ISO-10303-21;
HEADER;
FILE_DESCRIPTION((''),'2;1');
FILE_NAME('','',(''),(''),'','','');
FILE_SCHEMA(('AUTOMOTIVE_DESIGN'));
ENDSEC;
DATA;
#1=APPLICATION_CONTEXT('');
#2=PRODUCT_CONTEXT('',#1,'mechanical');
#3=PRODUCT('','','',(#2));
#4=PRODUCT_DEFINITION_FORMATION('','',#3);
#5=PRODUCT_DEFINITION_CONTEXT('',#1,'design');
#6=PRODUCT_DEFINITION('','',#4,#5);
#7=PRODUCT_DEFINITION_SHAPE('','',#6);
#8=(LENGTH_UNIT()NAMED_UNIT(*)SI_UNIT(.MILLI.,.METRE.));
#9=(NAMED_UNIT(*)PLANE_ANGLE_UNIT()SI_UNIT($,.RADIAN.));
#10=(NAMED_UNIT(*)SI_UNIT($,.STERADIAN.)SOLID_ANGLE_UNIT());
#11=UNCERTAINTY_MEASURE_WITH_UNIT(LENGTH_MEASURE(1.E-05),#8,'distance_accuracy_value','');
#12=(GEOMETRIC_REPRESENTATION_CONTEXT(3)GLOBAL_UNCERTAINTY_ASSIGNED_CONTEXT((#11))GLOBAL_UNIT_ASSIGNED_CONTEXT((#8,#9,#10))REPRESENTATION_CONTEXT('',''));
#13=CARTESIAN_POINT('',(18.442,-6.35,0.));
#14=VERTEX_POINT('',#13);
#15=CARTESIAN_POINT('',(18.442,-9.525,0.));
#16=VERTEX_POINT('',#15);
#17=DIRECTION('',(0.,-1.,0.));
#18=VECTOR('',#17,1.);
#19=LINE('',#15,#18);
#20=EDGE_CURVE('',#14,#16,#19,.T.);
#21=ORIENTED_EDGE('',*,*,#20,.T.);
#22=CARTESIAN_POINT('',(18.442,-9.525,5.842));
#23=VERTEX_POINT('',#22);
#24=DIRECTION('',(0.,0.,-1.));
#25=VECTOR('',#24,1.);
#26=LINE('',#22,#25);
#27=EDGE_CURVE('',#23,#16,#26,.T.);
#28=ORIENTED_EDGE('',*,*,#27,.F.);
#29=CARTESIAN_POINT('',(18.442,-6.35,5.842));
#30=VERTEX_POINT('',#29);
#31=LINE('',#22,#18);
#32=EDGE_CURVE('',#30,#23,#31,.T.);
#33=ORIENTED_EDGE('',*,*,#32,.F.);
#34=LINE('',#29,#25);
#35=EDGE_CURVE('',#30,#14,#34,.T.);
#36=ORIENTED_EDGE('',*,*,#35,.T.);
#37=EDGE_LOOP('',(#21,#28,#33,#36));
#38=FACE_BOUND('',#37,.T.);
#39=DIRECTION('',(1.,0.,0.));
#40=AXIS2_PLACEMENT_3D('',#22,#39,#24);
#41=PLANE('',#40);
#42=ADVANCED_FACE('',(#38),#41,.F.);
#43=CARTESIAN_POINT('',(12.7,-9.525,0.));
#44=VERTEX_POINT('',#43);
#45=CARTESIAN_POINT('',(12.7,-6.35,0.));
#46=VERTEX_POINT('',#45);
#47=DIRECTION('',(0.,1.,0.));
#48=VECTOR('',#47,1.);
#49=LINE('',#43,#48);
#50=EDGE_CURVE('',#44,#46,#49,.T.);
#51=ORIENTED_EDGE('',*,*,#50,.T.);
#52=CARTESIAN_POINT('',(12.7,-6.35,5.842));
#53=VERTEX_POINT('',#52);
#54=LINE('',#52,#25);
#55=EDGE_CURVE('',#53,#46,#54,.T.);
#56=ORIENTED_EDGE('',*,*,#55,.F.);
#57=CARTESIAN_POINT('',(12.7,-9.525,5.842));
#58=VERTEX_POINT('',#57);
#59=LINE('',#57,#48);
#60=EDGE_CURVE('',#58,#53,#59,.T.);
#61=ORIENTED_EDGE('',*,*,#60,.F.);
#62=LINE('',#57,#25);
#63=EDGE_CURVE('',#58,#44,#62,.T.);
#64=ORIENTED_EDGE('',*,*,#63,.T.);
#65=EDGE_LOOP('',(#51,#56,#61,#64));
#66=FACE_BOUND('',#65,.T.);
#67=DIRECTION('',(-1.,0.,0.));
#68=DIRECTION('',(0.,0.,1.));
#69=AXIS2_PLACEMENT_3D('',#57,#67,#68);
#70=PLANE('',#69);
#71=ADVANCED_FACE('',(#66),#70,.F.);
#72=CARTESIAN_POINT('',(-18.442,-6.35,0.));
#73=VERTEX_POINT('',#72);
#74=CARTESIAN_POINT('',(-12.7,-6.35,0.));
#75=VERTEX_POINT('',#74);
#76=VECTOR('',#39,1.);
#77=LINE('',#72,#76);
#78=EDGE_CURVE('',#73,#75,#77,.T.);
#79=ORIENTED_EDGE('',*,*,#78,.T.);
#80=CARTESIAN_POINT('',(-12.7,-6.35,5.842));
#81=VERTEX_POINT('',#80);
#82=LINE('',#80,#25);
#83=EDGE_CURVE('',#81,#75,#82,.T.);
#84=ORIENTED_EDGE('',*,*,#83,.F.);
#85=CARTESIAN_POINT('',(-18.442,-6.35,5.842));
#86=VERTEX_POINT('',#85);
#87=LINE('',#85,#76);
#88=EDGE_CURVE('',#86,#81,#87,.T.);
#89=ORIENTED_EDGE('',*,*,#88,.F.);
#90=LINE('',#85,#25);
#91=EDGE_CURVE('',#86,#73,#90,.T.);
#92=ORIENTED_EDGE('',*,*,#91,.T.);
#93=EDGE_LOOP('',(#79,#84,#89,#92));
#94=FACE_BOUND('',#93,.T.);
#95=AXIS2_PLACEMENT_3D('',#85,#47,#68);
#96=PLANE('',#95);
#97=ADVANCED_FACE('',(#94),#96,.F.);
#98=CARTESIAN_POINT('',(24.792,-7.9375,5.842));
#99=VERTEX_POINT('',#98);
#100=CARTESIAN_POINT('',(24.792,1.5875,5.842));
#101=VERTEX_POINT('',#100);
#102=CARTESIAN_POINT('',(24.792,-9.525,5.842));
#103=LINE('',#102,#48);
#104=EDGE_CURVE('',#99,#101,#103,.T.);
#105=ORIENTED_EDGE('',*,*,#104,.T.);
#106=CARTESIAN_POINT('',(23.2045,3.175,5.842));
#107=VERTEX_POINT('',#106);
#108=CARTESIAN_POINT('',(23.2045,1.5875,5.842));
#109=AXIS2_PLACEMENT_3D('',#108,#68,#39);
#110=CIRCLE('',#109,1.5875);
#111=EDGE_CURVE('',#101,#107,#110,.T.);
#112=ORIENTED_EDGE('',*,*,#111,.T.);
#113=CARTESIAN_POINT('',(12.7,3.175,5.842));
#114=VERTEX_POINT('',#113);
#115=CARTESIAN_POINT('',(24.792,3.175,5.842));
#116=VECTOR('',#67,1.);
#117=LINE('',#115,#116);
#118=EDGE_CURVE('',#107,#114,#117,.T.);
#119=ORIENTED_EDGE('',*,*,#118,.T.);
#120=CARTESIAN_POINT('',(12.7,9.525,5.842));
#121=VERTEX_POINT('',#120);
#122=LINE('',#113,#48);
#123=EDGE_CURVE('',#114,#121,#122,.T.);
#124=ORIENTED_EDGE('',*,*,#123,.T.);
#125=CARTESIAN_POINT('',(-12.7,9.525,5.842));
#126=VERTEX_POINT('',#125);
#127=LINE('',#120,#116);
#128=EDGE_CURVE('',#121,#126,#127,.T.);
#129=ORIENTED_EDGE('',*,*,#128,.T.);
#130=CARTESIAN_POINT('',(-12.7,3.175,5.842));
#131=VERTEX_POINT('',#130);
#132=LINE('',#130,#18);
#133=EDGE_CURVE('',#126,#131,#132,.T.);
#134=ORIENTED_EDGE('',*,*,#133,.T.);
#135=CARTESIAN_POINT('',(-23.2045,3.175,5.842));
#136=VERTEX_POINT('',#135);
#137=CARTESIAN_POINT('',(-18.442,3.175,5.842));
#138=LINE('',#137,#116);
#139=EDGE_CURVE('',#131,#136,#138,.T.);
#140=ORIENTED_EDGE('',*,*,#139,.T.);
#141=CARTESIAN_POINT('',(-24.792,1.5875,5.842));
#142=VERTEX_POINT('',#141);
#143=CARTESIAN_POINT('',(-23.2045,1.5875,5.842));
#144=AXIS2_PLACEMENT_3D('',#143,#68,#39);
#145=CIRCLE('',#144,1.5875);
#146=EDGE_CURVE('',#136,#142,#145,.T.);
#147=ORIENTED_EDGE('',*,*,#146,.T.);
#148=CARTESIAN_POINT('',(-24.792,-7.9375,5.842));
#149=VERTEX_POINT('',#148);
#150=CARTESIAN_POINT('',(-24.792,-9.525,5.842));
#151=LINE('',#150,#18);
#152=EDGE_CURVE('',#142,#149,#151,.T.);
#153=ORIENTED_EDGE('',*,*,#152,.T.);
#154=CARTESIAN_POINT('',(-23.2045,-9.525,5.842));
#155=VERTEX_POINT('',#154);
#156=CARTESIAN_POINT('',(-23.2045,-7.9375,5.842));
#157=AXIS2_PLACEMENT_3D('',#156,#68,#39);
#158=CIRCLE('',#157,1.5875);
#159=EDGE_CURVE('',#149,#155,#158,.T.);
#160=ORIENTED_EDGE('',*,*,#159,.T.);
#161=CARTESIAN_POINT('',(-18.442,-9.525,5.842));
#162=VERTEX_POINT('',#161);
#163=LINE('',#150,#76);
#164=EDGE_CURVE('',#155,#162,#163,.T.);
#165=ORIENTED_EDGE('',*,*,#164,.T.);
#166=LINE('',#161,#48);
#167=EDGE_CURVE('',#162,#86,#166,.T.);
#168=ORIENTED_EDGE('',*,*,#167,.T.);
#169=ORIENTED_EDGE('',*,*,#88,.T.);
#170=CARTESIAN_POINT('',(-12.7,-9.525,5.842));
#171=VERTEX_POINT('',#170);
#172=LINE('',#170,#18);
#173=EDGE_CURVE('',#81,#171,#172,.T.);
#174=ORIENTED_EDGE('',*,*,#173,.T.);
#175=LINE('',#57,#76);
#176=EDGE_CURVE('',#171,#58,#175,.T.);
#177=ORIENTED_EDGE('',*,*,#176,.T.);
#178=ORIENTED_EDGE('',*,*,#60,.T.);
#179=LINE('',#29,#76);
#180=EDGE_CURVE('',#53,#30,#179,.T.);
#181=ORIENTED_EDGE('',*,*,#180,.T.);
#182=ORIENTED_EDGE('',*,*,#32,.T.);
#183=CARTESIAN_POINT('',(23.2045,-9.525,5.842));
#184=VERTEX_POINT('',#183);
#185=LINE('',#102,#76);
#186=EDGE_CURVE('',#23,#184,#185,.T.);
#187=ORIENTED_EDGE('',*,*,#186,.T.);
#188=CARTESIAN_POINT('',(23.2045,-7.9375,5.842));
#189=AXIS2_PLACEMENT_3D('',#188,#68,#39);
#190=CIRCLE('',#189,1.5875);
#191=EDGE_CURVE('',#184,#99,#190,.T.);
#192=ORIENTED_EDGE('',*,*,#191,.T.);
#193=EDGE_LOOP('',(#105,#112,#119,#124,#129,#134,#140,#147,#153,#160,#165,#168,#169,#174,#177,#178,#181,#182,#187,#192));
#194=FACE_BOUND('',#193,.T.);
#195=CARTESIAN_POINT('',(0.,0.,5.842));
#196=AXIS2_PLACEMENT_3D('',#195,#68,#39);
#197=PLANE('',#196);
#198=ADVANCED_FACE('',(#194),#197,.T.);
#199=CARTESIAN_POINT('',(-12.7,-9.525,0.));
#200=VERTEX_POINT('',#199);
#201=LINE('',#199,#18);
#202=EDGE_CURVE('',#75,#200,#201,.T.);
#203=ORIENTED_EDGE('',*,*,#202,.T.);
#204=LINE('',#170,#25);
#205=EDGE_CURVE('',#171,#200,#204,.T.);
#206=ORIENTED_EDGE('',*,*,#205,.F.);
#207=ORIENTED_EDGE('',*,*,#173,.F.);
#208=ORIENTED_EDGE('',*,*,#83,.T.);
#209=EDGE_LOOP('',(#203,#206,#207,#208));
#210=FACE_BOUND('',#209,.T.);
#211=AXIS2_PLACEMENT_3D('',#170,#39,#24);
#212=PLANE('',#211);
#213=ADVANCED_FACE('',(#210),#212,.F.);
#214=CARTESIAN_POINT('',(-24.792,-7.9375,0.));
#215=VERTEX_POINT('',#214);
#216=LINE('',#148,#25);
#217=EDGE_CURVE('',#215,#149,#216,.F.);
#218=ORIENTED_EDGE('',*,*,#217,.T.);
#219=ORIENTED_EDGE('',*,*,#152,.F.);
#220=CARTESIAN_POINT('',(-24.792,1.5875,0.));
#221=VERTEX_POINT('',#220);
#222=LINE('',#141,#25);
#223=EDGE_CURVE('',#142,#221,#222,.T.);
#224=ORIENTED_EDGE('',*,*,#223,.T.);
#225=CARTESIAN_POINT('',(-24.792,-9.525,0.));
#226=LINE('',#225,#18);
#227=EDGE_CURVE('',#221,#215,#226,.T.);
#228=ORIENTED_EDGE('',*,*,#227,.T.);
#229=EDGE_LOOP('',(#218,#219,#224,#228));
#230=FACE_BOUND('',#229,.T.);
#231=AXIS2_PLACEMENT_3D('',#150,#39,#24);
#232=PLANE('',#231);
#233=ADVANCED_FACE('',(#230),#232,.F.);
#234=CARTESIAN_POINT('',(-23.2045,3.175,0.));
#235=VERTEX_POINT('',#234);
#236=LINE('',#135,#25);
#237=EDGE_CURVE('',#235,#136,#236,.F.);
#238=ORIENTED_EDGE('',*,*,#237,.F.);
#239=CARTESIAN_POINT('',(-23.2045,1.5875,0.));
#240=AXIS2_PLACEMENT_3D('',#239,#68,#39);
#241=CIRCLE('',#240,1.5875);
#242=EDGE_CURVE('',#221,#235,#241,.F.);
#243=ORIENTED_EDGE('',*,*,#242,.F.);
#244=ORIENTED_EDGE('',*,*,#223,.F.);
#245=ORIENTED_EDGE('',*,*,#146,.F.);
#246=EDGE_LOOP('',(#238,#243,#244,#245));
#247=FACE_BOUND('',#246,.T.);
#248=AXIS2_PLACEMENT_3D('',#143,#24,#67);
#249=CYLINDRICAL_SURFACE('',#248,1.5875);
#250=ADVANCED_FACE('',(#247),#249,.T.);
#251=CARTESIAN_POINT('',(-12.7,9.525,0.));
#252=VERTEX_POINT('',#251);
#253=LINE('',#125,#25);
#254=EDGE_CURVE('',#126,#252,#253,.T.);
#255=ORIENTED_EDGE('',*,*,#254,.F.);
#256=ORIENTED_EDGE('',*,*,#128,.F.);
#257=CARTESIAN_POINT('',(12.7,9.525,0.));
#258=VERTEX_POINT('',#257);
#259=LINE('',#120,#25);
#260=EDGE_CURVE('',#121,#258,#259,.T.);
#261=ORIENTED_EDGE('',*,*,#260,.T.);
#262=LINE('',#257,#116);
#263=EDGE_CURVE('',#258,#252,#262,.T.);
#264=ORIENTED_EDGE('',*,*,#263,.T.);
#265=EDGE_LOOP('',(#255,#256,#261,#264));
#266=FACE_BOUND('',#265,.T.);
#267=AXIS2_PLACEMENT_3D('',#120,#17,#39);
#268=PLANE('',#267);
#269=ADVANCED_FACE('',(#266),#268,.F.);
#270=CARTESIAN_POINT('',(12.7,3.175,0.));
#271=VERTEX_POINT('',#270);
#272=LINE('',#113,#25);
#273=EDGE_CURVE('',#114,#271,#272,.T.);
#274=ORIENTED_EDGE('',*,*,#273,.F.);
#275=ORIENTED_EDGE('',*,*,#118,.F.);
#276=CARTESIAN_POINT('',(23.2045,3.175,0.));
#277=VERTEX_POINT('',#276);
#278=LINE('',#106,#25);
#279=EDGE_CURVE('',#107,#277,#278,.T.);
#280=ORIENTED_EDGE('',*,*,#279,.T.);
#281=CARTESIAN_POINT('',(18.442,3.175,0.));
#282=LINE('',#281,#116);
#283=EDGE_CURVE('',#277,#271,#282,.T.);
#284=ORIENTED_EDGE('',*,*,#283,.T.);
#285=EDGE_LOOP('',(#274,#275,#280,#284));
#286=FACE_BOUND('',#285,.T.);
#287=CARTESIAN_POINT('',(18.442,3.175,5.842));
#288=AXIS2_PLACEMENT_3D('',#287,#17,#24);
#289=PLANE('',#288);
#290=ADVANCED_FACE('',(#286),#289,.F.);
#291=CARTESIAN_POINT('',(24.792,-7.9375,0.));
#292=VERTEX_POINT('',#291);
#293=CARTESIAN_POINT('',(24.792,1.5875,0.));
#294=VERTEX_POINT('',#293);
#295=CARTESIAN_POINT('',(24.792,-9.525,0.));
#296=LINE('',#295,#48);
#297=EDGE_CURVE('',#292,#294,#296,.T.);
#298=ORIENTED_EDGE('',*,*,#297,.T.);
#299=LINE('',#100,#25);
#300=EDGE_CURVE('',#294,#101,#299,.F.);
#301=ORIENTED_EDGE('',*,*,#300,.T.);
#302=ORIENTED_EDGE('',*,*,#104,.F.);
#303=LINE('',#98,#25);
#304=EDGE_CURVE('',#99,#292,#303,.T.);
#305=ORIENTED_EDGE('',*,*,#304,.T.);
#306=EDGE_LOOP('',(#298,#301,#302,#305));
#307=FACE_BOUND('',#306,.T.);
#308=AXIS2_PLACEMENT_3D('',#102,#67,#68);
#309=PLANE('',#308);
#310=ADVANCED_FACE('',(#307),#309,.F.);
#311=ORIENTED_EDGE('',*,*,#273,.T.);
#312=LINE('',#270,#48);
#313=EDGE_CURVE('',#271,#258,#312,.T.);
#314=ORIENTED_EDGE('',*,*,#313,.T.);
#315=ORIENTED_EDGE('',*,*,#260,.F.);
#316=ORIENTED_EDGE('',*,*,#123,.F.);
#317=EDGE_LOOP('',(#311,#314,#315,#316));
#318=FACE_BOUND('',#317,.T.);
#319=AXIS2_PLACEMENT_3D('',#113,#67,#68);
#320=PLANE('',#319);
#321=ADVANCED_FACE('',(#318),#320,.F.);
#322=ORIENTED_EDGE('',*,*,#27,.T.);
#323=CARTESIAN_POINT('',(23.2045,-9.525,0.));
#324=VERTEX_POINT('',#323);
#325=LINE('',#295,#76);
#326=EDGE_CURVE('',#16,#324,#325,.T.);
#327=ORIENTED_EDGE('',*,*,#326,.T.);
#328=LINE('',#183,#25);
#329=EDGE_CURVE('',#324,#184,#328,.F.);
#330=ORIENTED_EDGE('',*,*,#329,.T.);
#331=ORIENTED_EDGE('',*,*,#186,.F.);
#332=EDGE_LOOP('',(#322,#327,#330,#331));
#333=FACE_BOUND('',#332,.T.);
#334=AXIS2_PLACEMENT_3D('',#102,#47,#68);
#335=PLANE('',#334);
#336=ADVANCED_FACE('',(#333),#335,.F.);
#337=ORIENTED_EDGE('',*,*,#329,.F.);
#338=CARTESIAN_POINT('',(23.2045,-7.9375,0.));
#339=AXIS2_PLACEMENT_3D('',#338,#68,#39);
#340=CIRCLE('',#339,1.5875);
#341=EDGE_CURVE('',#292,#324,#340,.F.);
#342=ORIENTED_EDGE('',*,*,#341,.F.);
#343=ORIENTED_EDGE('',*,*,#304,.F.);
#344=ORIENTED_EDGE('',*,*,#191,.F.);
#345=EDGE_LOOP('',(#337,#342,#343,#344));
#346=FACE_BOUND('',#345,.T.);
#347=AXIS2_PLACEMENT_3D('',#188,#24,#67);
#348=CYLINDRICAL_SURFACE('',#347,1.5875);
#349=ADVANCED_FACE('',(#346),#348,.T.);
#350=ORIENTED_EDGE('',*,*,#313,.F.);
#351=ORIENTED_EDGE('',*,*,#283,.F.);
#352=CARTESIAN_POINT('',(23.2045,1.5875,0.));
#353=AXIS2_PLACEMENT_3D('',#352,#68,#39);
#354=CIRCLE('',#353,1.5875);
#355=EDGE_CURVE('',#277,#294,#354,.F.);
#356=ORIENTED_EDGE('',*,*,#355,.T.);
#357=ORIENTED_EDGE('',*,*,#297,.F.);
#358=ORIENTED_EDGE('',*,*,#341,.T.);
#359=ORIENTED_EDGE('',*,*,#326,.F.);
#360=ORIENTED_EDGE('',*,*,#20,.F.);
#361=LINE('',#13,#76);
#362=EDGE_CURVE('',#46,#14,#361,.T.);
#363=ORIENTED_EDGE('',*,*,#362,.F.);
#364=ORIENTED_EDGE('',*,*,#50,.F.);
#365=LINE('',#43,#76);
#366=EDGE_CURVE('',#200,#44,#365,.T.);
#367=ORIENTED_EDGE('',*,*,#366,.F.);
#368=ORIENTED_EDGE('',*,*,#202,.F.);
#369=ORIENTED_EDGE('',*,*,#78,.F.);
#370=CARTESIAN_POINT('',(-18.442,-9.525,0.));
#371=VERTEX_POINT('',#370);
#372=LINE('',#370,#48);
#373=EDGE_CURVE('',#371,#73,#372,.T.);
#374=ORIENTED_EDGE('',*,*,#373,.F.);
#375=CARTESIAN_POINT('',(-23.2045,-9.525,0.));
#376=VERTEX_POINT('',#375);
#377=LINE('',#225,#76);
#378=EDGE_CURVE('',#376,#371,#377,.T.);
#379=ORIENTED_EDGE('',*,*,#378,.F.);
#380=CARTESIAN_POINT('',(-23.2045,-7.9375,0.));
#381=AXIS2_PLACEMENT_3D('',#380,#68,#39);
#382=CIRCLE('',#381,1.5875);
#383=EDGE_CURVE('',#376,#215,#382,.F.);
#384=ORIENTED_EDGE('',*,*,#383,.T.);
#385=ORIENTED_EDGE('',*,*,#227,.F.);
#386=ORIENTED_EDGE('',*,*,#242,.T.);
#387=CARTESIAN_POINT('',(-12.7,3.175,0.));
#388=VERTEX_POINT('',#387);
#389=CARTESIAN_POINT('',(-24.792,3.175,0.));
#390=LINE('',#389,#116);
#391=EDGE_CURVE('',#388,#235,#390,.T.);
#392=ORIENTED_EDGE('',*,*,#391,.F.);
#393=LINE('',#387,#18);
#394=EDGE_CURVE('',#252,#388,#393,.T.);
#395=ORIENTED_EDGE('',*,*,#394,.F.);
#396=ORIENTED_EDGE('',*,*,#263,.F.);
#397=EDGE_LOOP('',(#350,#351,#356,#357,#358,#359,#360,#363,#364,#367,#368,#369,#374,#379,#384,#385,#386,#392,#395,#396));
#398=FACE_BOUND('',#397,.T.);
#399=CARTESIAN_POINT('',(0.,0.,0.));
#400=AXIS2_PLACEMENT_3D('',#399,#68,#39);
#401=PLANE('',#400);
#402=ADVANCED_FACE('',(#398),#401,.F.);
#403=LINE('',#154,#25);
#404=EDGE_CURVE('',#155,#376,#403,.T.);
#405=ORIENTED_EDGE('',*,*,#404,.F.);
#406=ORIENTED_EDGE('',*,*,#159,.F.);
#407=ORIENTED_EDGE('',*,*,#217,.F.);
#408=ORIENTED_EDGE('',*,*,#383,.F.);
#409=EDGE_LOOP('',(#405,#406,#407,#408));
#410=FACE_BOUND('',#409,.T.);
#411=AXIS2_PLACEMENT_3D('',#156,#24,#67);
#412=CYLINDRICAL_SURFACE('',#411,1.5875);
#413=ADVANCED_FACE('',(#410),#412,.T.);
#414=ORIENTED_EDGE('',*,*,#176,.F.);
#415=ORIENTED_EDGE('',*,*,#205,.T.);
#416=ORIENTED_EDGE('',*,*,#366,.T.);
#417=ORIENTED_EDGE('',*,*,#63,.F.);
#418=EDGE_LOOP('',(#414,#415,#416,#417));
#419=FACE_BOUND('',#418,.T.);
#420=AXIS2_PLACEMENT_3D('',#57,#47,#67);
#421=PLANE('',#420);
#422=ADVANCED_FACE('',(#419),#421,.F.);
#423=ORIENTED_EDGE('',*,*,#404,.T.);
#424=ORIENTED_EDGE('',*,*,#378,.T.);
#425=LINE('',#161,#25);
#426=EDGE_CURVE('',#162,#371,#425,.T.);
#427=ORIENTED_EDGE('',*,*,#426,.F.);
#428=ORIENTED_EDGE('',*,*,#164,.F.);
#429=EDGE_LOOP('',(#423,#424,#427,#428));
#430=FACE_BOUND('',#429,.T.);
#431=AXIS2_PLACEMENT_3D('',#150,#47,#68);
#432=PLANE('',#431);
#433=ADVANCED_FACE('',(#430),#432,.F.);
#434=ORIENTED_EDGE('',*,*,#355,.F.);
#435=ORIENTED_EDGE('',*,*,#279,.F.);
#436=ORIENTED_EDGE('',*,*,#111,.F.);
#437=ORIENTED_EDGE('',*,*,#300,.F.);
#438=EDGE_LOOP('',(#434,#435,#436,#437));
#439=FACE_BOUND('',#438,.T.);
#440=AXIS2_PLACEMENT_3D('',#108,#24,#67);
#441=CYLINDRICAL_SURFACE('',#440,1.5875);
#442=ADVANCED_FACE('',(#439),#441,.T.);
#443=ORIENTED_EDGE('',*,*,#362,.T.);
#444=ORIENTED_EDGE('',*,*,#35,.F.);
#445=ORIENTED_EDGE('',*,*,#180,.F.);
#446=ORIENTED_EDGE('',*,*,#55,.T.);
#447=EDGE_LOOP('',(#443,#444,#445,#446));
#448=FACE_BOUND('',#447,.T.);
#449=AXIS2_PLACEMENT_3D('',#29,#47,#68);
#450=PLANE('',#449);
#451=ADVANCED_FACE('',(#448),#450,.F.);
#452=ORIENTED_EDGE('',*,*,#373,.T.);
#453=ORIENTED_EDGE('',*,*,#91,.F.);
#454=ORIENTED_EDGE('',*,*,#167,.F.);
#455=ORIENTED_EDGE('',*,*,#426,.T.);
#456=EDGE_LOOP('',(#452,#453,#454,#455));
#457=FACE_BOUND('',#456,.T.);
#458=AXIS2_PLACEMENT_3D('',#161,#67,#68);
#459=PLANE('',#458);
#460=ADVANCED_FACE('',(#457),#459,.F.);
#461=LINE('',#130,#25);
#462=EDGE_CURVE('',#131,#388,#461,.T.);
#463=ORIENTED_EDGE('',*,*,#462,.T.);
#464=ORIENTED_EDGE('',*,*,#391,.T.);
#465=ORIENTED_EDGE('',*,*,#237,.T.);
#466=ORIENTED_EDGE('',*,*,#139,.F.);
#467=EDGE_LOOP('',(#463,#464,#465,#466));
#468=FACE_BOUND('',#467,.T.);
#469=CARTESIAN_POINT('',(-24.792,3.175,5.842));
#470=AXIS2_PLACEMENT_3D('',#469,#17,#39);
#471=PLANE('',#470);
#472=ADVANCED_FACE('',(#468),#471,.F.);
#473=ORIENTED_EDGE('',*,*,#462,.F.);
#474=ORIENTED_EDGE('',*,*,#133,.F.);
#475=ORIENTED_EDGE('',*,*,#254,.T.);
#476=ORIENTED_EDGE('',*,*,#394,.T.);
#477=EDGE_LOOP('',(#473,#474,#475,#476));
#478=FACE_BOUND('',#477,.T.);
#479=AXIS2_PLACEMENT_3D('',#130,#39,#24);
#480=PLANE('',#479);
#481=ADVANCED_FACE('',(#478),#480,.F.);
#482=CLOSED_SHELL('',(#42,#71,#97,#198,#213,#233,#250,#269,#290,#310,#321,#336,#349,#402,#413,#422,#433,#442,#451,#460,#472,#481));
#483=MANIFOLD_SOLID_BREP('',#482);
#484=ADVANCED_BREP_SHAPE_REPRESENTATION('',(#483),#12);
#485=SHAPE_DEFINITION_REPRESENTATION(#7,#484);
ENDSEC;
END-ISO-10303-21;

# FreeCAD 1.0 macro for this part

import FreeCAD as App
import Part
import Sketcher
from FreeCAD import Vector
Q = App.Units.Quantity


def edges_at(feature, points):
    """Names of the edges that pass closest to the given points."""
    edges = feature.Shape.Edges
    near = lambda p: min(range(len(edges)), key=lambda i: edges[i].distToShape(Part.Vertex(*p))[0])
    return sorted({f"Edge{near(p) + 1}" for p in points})


def add_polygon(sketch, points):
    """Adds a closed chain of lines whose ends are joined by coincident constraints."""
    first, n = sketch.GeometryCount, len(points)
    for a, b in zip(points, points[1:] + points[:1]):
        sketch.addGeometry(Part.LineSegment(App.Vector(*a, 0), App.Vector(*b, 0)), False)
    for i in range(n):
        sketch.addConstraint(Sketcher.Constraint("Coincident", first + i, 2, first + (i + 1) % n, 1))

doc = App.newDocument("Part")
body = doc.addObject("PartDesign::Body", "Body")

sketch1 = body.newObject("Sketcher::SketchObject", "Sketch")
sketch1.AttachmentSupport = (doc.getObject("XY_Plane"), [""])
sketch1.MapMode = "FlatFace"
add_polygon(sketch1, [(-12.7, -9.5), (12.7, -9.5), (12.7, -6.3), (18.4, -6.3), (18.4, -9.5), (24.8, -9.5), (24.8, 3.2), (12.7, 3.2), (12.7, 9.5), (-12.7, 9.5), (-12.7, 3.2), (-24.8, 3.2), (-24.8, -9.5), (-18.4, -9.5), (-18.4, -6.3), (-12.7, -6.3)])
sketch1.addConstraint([
    Sketcher.Constraint("Horizontal", 0),
    Sketcher.Constraint("Vertical", 1),
    Sketcher.Constraint("Horizontal", 2),
    Sketcher.Constraint("Vertical", 3),
    Sketcher.Constraint("Horizontal", 4),
    Sketcher.Constraint("Vertical", 5),
    Sketcher.Constraint("Horizontal", 6),
    Sketcher.Constraint("Vertical", 7),
    Sketcher.Constraint("Horizontal", 8),
    Sketcher.Constraint("Vertical", 9),
    Sketcher.Constraint("Horizontal", 10),
    Sketcher.Constraint("Vertical", 11),
    Sketcher.Constraint("Horizontal", 12),
    Sketcher.Constraint("Vertical", 13),
    Sketcher.Constraint("Horizontal", 14),
    Sketcher.Constraint("Vertical", 15),
    Sketcher.Constraint("Symmetric", 0, 2, 8, 2, -1, 1),
    Sketcher.Constraint("Symmetric", 6, 2, 9, 2, -2),
    Sketcher.Constraint("Symmetric", 4, 2, 11, 2, -2),
    Sketcher.Constraint("Symmetric", 2, 2, 13, 2, -2),
    Sketcher.Constraint("Horizontal", 0, 2, 3, 2),
    Sketcher.Constraint("Vertical", 9, 2, 14, 2),
    Sketcher.Constraint("Equal", 12, 7),
    Sketcher.Constraint("DistanceX", 0, 1, 0, 2, Q("1 in")),
    Sketcher.Constraint("DistanceY", 5, 1, 5, 2, Q("0.5 in")),
    Sketcher.Constraint("DistanceX", 4, 1, 4, 2, Q("0.25 in")),
    Sketcher.Constraint("DistanceY", 1, 1, 1, 2, Q("0.125 in")),
    Sketcher.Constraint("DistanceX", 2, 1, 2, 2, 5.742),
])
pad1 = body.newObject("PartDesign::Pad", "Pad")
pad1.Profile = sketch1
pad1.Length = Q("0.23 in")
doc.recompute()

fillet = body.newObject("PartDesign::Fillet", "Fillet")
fillet.Base = (pad1, edges_at(pad1, [
    (24.792, 3.175, 2.921),
    (24.792, -9.525, 2.921),
    (-24.792, -9.525, 2.921),
    (-24.792, 3.175, 2.921),
]))
fillet.Radius = Q("0.0625 in")

doc.recompute()
